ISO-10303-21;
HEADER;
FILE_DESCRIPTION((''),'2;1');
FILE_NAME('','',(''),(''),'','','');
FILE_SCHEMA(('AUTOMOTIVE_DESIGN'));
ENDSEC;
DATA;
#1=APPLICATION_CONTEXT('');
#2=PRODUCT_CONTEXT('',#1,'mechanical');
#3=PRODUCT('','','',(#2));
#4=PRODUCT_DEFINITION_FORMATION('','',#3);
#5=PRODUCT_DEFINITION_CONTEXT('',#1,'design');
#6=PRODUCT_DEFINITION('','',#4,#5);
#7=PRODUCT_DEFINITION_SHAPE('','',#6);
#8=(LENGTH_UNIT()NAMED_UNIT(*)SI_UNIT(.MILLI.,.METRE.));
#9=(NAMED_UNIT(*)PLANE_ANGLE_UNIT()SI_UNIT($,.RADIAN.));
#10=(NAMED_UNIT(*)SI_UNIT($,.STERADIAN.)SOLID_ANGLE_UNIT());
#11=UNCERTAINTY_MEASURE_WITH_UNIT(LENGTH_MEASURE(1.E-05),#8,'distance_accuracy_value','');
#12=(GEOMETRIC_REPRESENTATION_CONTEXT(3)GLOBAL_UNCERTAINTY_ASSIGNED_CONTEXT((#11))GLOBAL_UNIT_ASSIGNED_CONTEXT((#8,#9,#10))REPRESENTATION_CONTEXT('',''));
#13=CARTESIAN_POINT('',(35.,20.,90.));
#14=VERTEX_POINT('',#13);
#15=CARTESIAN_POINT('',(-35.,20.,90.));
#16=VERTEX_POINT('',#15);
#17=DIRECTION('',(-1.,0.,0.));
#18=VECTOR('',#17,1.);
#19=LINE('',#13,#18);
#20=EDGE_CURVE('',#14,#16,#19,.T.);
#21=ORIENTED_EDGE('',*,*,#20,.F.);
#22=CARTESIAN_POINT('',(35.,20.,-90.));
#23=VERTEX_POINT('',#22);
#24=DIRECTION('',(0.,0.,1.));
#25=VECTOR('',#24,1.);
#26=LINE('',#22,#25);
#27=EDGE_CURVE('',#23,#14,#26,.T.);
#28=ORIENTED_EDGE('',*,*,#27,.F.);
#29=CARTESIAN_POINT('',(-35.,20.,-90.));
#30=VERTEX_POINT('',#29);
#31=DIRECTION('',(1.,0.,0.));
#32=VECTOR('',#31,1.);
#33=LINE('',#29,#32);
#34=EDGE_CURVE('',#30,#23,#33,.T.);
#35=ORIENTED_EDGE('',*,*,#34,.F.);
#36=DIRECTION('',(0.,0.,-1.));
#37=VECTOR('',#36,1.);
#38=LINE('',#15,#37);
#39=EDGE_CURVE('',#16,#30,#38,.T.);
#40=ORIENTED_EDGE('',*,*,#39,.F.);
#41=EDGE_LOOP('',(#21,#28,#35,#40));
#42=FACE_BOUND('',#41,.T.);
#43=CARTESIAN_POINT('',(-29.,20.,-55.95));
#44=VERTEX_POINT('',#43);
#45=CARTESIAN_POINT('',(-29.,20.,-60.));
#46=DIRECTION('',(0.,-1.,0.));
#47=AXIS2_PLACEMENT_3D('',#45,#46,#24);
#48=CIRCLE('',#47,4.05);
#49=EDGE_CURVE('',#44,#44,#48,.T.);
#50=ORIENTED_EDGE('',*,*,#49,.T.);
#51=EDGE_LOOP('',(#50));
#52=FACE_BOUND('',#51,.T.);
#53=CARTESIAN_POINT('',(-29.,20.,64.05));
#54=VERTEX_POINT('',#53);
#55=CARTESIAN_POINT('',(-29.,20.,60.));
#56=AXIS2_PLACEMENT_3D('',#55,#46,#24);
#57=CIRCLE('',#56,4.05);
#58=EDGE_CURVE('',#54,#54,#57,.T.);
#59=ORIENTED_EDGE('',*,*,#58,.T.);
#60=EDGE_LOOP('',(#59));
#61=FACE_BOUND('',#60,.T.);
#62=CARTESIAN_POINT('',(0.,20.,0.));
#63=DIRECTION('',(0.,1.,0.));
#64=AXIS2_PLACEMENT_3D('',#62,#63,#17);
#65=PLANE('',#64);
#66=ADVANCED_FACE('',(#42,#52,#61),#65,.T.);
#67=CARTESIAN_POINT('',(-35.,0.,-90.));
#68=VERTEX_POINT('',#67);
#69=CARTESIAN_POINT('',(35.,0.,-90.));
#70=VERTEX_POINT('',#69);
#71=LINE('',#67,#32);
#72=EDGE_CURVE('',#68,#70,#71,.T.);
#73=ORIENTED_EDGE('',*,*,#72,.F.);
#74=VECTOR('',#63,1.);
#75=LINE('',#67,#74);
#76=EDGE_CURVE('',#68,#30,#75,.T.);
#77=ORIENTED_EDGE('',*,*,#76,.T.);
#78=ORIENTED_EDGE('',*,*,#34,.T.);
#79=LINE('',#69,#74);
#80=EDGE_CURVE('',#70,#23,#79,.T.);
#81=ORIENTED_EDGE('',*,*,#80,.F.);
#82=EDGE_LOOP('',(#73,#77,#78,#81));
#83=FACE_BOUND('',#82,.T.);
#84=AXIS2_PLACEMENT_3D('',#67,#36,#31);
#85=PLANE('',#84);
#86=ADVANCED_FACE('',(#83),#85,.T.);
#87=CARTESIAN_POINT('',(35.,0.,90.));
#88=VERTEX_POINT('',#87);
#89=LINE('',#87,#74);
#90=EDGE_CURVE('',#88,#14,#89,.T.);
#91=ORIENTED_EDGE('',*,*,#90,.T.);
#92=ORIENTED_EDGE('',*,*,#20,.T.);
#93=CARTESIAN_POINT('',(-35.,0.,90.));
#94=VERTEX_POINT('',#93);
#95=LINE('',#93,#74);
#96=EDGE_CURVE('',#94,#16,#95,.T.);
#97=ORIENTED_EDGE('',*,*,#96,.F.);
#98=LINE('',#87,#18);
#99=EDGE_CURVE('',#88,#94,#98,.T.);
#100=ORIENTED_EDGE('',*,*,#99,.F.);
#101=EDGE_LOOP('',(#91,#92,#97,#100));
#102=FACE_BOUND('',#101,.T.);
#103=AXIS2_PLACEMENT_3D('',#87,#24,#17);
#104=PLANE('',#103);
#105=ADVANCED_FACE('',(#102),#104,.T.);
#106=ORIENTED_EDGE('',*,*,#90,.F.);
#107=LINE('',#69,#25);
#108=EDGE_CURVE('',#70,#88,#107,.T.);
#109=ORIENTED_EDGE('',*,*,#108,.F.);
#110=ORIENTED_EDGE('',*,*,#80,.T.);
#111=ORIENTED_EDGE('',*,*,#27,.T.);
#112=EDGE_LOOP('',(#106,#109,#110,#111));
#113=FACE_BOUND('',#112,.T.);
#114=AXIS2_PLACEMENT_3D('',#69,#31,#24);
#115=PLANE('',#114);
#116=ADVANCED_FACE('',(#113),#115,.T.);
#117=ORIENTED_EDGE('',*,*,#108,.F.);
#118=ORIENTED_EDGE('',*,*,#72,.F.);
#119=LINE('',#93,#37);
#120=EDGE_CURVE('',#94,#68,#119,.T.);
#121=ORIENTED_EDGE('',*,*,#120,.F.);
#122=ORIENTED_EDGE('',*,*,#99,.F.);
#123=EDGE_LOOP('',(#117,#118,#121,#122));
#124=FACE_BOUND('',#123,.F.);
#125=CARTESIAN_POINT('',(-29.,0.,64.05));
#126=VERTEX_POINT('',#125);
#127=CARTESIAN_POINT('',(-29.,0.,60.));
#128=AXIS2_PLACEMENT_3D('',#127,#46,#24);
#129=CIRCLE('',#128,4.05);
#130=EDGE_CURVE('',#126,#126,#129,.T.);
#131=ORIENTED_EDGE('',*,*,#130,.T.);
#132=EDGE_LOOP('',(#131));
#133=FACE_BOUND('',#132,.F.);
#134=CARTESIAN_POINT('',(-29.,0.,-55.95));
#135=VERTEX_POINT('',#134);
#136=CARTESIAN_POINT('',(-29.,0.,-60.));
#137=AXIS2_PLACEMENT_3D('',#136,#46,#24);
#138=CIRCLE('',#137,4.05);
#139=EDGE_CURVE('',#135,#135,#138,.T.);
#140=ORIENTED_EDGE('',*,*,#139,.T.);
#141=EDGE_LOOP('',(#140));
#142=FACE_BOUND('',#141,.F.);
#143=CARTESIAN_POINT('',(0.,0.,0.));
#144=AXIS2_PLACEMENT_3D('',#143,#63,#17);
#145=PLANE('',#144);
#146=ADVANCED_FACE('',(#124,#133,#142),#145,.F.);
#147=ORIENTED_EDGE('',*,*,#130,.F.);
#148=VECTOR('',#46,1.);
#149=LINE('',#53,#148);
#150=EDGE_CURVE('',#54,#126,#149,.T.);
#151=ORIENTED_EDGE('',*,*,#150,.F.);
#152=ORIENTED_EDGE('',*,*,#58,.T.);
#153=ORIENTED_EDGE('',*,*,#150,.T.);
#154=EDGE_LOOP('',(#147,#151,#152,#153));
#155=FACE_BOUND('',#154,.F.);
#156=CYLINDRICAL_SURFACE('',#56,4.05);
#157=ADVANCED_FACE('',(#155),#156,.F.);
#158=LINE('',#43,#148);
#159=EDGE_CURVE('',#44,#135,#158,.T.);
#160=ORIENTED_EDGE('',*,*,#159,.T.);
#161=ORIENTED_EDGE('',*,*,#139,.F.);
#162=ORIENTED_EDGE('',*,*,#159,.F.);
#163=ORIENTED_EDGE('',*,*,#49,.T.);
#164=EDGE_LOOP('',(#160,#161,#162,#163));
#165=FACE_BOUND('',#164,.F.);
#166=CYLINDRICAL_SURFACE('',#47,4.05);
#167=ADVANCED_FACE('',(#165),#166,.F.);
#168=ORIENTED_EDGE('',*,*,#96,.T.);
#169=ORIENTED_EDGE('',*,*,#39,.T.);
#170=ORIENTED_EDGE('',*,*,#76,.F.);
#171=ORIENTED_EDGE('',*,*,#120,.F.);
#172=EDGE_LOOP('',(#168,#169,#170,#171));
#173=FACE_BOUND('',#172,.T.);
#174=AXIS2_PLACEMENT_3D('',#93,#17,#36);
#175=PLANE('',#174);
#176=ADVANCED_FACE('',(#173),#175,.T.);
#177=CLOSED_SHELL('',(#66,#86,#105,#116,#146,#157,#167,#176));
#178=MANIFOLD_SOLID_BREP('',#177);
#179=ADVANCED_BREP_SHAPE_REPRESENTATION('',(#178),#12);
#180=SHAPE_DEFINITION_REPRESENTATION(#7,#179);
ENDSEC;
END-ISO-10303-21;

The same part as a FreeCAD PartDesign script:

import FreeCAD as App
import Part
import Sketcher

V = App.Vector
Q = App.Units.Quantity

doc = App.newDocument("Part")
body = doc.addObject("PartDesign::Body", "Body")

# Sketch on XZ plane
sketch1 = body.newObject("Sketcher::SketchObject", "Sketch")
sketch1.AttachmentSupport = (doc.getObject("XZ_Plane"), [""])
sketch1.MapMode = "FlatFace"
sketch1.addGeometry(Part.LineSegment(V(-35, 90, 0), V(35, 90, 0)), False)
sketch1.addGeometry(Part.LineSegment(V(35, 90, 0), V(35, -90, 0)), False)
sketch1.addGeometry(Part.LineSegment(V(35, -90, 0), V(-35, -90, 0)), False)
sketch1.addGeometry(Part.LineSegment(V(-35, -90, 0), V(-35, 90, 0)), False)
sketch1.addConstraint(Sketcher.Constraint("Coincident", 0, 2, 1, 1))
sketch1.addConstraint(Sketcher.Constraint("Coincident", 1, 2, 2, 1))
sketch1.addConstraint(Sketcher.Constraint("Coincident", 2, 2, 3, 1))
sketch1.addConstraint(Sketcher.Constraint("Coincident", 3, 2, 0, 1))
sketch1.addConstraint(Sketcher.Constraint("Horizontal", 0))
sketch1.addConstraint(Sketcher.Constraint("Vertical", 1))
sketch1.addConstraint(Sketcher.Constraint("Horizontal", 2))
sketch1.addConstraint(Sketcher.Constraint("Vertical", 3))
sketch1.addConstraint(Sketcher.Constraint("Symmetric", 0, 2, 2, 2, -1, 1))
sketch1.addConstraint(Sketcher.Constraint("DistanceX", 0, 1, 0, 2, Q("70 mm")))
sketch1.addConstraint(Sketcher.Constraint("DistanceY", 1, 2, 1, 1, Q("180 mm")))
pad1 = body.newObject("PartDesign::Pad", "Pad")
pad1.Profile = sketch1
pad1.Length = 20
pad1.Reversed = True

# Sketch on XZ plane
sketch2 = body.newObject("Sketcher::SketchObject", "Sketch001")
sketch2.AttachmentSupport = (doc.getObject("XZ_Plane"), [""])
sketch2.MapMode = "FlatFace"
sketch2.AttachmentOffset = App.Placement(V(0, 0, -20), App.Rotation())
sketch2.addGeometry(Part.Circle(V(-29, 60, 0), V(0, 0, 1), 4), False)
sketch2.addGeometry(Part.Circle(V(-29, -60, 0), V(0, 0, 1), 4), False)
sketch2.addConstraint(Sketcher.Constraint("Equal", 0, 1))
sketch2.addConstraint(Sketcher.Constraint("Symmetric", 0, 3, 1, 3, -1))
sketch2.addConstraint(Sketcher.Constraint("Diameter", 0, Q("8.1 mm")))
sketch2.addConstraint(Sketcher.Constraint("DistanceX", 0, 3, -1, 1, Q("29 mm")))
sketch2.addConstraint(Sketcher.Constraint("DistanceY", -1, 1, 0, 3, Q("60 mm")))
doc.recompute()
hole = body.newObject("PartDesign::Hole", "Hole")
hole.Profile = sketch2
hole.ThreadType = "None"
hole.Diameter = 8.1
hole.DepthType = "Dimension"
hole.Depth = 80
hole.DrillPoint = "Flat"
hole.Reversed = True

doc.recompute()
